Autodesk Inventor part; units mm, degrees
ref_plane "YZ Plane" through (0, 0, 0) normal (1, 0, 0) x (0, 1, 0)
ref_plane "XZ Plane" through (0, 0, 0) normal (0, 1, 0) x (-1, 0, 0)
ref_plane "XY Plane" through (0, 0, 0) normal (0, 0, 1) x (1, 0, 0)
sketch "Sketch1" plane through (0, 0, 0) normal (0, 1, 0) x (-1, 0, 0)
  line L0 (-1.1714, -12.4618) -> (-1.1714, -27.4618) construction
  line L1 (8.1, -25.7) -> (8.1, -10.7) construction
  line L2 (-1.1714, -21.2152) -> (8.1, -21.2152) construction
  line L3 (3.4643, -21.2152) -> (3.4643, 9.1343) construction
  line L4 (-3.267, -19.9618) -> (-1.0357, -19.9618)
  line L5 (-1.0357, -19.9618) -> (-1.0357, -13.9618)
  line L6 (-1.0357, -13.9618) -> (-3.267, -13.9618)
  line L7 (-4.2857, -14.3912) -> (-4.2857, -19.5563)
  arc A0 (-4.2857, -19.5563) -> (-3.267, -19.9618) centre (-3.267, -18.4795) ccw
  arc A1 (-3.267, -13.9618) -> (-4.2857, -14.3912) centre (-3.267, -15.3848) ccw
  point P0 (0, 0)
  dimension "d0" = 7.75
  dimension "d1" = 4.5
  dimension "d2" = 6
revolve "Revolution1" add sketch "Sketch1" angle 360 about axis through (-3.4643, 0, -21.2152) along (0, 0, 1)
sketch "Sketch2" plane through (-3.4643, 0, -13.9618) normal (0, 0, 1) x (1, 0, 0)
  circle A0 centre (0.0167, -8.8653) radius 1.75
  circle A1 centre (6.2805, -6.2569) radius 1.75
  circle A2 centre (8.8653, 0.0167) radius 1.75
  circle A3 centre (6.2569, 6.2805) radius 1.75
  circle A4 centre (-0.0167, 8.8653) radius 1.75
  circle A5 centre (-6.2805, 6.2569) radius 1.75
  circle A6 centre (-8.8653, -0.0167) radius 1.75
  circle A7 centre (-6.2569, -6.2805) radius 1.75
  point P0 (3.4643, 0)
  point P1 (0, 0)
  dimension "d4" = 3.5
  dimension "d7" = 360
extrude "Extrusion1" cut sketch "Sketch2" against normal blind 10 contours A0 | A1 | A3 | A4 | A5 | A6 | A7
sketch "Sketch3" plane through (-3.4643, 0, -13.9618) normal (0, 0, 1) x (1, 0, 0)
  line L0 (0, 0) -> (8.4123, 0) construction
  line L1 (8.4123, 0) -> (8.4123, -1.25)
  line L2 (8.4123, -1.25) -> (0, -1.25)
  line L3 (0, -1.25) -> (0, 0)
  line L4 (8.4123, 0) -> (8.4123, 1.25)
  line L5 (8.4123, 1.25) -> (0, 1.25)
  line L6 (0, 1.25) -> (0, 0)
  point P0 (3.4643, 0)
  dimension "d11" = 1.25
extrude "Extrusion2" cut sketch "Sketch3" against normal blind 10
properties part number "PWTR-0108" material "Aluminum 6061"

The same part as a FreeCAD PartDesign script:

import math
import FreeCAD as App
import Part
import Sketcher
Q = App.Units.Quantity

doc = App.newDocument("Part")
body = doc.addObject("PartDesign::Body", "Body")

sketch1 = doc.addObject("Sketcher::SketchObject", "Sketch")
body.addObject(sketch1)
sketch1.AttachmentSupport = (doc.XZ_Plane, [""])
sketch1.MapMode = "FlatFace"
sketch1.addGeometry([
    Part.ArcOfCircle(Part.Circle(App.Vector(3.267, -18.4795, 0), App.Vector(0, 0, 1), 1.482312), math.radians(-90), math.radians(-46.58818)),
    Part.LineSegment(App.Vector(3.267, -19.9618, 0), App.Vector(1.0357, -19.9618, 0)),
    Part.LineSegment(App.Vector(1.0357, -19.9618, 0), App.Vector(1.0357, -13.9618, 0)),
    Part.LineSegment(App.Vector(1.0357, -13.9618, 0), App.Vector(3.267, -13.9618, 0)),
    Part.ArcOfCircle(Part.Circle(App.Vector(3.267, -15.3848, 0), App.Vector(0, 0, 1), 1.423), math.radians(44.28537), math.radians(90)),
    Part.LineSegment(App.Vector(4.2857, -14.3912, 0), App.Vector(4.2857, -19.5563, 0)),
], False)
sketch1.addGeometry(Part.LineSegment(App.Vector(-3.4643, -19.9618, 0), App.Vector(-3.4643, -13.9618, 0)), True)
sketch1.addConstraint([
    Sketcher.Constraint("Tangent", 0, 1, 1, 1),
    Sketcher.Constraint("Coincident", 1, 2, 2, 1),
    Sketcher.Constraint("Coincident", 2, 2, 3, 1),
    Sketcher.Constraint("Tangent", 3, 2, 4, 2),
    Sketcher.Constraint("Coincident", 4, 1, 5, 1),
    Sketcher.Constraint("Coincident", 5, 2, 0, 2),
    Sketcher.Constraint("Horizontal", 1),
    Sketcher.Constraint("Vertical", 2),
    Sketcher.Constraint("Horizontal", 3),
    Sketcher.Constraint("Vertical", 5),
    Sketcher.Constraint("Vertical", 6),
    Sketcher.Constraint("Horizontal", 1, 2, 6, 1),
    Sketcher.Constraint("Horizontal", 3, 2, 6, 2),
    Sketcher.Constraint("Vertical", 0, 3, 4, 3),
    Sketcher.Constraint("DistanceY", 2, 1, 2, 2, Q("6 mm")),
    Sketcher.Constraint("DistanceX", 6, 1, 1, 2, Q("4.5 mm")),
    Sketcher.Constraint("DistanceX", 6, 1, 5, 2, Q("7.75 mm")),
    Sketcher.Constraint("Radius", 4, Q("1.423 mm")),
    Sketcher.Constraint("Radius", 0, Q("1.4823 mm")),
    Sketcher.Constraint("DistanceY", 5, 2, 5, 1, Q("5.165 mm")),
    Sketcher.Constraint("DistanceX", -1, 1, 0, 3, Q("3.267 mm")),
    Sketcher.Constraint("DistanceY", 0, 3, -1, 1, Q("18.4795 mm")),
])
revolution = doc.addObject("PartDesign::Revolution", "Revolution")
body.addObject(revolution)
revolution.Profile = sketch1
revolution.ReferenceAxis = (sketch1, ["Axis0"])
revolution.Angle = 360

sketch2 = doc.addObject("Sketcher::SketchObject", "Sketch001")
body.addObject(sketch2)
sketch2.AttachmentSupport = (doc.XY_Plane, [""])
sketch2.MapMode = "FlatFace"
sketch2.AttachmentOffset = App.Placement(App.Vector(0, 0, -13.9618), App.Rotation())
sketch2.addGeometry([
    Part.Circle(App.Vector(-3.4476, -8.8653, 0), App.Vector(0, 0, 1), 1.75),
    Part.Circle(App.Vector(2.8162, -6.2569, 0), App.Vector(0, 0, 1), 1.75),
    Part.Circle(App.Vector(2.7926, 6.2805, 0), App.Vector(0, 0, 1), 1.75),
    Part.Circle(App.Vector(-3.481, 8.8653, 0), App.Vector(0, 0, 1), 1.75),
    Part.Circle(App.Vector(-9.7448, 6.2569, 0), App.Vector(0, 0, 1), 1.75),
    Part.Circle(App.Vector(-12.3296, -0.0167, 0), App.Vector(0, 0, 1), 1.75),
    Part.Circle(App.Vector(-9.7212, -6.2805, 0), App.Vector(0, 0, 1), 1.75),
], False)
sketch2.addConstraint([
    Sketcher.Constraint("Equal", 0, 1),
    Sketcher.Constraint("Equal", 1, 2),
    Sketcher.Constraint("Equal", 2, 3),
    Sketcher.Constraint("Equal", 3, 4),
    Sketcher.Constraint("Equal", 4, 5),
    Sketcher.Constraint("Equal", 5, 6),
    Sketcher.Constraint("Diameter", 0, Q("3.5 mm")),
    Sketcher.Constraint("DistanceY", 1, 3, -1, 1, Q("6.257 mm")),
    Sketcher.Constraint("DistanceX", 3, 3, -1, 1, Q("3.481 mm")),
    Sketcher.Constraint("DistanceY", -1, 1, 4, 3, Q("6.257 mm")),
    Sketcher.Constraint("DistanceX", 4, 3, 1, 3, Q("12.561 mm")),
    Sketcher.Constraint("DistanceX", 5, 3, 0, 3, Q("8.882 mm")),
    Sketcher.Constraint("DistanceY", 5, 3, 3, 3, Q("8.882 mm")),
    Sketcher.Constraint("DistanceX", 0, 3, -1, 1, Q("3.4476 mm")),
    Sketcher.Constraint("DistanceY", 0, 3, -1, 1, Q("8.8653 mm")),
    Sketcher.Constraint("DistanceX", -1, 1, 1, 3, Q("2.8162 mm")),
    Sketcher.Constraint("DistanceX", -1, 1, 2, 3, Q("2.7926 mm")),
    Sketcher.Constraint("DistanceY", -1, 1, 2, 3, Q("6.2805 mm")),
    Sketcher.Constraint("DistanceY", -1, 1, 3, 3, Q("8.8653 mm")),
    Sketcher.Constraint("DistanceX", 6, 3, -1, 1, Q("9.7212 mm")),
    Sketcher.Constraint("DistanceY", 6, 3, -1, 1, Q("6.2805 mm")),
])
pocket1 = doc.addObject("PartDesign::Pocket", "Pocket")
body.addObject(pocket1)
pocket1.Profile = sketch2
pocket1.Length = 10

sketch3 = doc.addObject("Sketcher::SketchObject", "Sketch002")
body.addObject(sketch3)
sketch3.AttachmentSupport = (doc.XY_Plane, [""])
sketch3.MapMode = "FlatFace"
sketch3.AttachmentOffset = App.Placement(App.Vector(0, 0, -13.9618), App.Rotation())
sketch3.addGeometry([
    Part.LineSegment(App.Vector(4.948, -1.25, 0), App.Vector(4.948, 1.25, 0)),
    Part.LineSegment(App.Vector(4.948, 1.25, 0), App.Vector(-3.4643, 1.25, 0)),
    Part.LineSegment(App.Vector(-3.4643, 1.25, 0), App.Vector(-3.4643, -1.25, 0)),
    Part.LineSegment(App.Vector(-3.4643, -1.25, 0), App.Vector(4.948, -1.25, 0)),
], False)
sketch3.addConstraint([
    Sketcher.Constraint("Coincident", 0, 2, 1, 1),
    Sketcher.Constraint("Coincident", 1, 2, 2, 1),
    Sketcher.Constraint("Coincident", 2, 2, 3, 1),
    Sketcher.Constraint("Coincident", 3, 2, 0, 1),
    Sketcher.Constraint("Vertical", 0),
    Sketcher.Constraint("Horizontal", 1),
    Sketcher.Constraint("Vertical", 2),
    Sketcher.Constraint("Horizontal", 3),
    Sketcher.Constraint("DistanceY", -1, 1, 0, 2, Q("1.25 mm")),
    Sketcher.Constraint("DistanceY", 2, 2, -1, 1, Q("1.25 mm")),
    Sketcher.Constraint("DistanceX", 1, 2, 1, 1, Q("8.4123 mm")),
    Sketcher.Constraint("DistanceX", -1, 1, 0, 2, Q("4.948 mm")),
])
pocket2 = doc.addObject("PartDesign::Pocket", "Pocket001")
body.addObject(pocket2)
pocket2.Profile = sketch3
pocket2.Length = 10

doc.recompute()
